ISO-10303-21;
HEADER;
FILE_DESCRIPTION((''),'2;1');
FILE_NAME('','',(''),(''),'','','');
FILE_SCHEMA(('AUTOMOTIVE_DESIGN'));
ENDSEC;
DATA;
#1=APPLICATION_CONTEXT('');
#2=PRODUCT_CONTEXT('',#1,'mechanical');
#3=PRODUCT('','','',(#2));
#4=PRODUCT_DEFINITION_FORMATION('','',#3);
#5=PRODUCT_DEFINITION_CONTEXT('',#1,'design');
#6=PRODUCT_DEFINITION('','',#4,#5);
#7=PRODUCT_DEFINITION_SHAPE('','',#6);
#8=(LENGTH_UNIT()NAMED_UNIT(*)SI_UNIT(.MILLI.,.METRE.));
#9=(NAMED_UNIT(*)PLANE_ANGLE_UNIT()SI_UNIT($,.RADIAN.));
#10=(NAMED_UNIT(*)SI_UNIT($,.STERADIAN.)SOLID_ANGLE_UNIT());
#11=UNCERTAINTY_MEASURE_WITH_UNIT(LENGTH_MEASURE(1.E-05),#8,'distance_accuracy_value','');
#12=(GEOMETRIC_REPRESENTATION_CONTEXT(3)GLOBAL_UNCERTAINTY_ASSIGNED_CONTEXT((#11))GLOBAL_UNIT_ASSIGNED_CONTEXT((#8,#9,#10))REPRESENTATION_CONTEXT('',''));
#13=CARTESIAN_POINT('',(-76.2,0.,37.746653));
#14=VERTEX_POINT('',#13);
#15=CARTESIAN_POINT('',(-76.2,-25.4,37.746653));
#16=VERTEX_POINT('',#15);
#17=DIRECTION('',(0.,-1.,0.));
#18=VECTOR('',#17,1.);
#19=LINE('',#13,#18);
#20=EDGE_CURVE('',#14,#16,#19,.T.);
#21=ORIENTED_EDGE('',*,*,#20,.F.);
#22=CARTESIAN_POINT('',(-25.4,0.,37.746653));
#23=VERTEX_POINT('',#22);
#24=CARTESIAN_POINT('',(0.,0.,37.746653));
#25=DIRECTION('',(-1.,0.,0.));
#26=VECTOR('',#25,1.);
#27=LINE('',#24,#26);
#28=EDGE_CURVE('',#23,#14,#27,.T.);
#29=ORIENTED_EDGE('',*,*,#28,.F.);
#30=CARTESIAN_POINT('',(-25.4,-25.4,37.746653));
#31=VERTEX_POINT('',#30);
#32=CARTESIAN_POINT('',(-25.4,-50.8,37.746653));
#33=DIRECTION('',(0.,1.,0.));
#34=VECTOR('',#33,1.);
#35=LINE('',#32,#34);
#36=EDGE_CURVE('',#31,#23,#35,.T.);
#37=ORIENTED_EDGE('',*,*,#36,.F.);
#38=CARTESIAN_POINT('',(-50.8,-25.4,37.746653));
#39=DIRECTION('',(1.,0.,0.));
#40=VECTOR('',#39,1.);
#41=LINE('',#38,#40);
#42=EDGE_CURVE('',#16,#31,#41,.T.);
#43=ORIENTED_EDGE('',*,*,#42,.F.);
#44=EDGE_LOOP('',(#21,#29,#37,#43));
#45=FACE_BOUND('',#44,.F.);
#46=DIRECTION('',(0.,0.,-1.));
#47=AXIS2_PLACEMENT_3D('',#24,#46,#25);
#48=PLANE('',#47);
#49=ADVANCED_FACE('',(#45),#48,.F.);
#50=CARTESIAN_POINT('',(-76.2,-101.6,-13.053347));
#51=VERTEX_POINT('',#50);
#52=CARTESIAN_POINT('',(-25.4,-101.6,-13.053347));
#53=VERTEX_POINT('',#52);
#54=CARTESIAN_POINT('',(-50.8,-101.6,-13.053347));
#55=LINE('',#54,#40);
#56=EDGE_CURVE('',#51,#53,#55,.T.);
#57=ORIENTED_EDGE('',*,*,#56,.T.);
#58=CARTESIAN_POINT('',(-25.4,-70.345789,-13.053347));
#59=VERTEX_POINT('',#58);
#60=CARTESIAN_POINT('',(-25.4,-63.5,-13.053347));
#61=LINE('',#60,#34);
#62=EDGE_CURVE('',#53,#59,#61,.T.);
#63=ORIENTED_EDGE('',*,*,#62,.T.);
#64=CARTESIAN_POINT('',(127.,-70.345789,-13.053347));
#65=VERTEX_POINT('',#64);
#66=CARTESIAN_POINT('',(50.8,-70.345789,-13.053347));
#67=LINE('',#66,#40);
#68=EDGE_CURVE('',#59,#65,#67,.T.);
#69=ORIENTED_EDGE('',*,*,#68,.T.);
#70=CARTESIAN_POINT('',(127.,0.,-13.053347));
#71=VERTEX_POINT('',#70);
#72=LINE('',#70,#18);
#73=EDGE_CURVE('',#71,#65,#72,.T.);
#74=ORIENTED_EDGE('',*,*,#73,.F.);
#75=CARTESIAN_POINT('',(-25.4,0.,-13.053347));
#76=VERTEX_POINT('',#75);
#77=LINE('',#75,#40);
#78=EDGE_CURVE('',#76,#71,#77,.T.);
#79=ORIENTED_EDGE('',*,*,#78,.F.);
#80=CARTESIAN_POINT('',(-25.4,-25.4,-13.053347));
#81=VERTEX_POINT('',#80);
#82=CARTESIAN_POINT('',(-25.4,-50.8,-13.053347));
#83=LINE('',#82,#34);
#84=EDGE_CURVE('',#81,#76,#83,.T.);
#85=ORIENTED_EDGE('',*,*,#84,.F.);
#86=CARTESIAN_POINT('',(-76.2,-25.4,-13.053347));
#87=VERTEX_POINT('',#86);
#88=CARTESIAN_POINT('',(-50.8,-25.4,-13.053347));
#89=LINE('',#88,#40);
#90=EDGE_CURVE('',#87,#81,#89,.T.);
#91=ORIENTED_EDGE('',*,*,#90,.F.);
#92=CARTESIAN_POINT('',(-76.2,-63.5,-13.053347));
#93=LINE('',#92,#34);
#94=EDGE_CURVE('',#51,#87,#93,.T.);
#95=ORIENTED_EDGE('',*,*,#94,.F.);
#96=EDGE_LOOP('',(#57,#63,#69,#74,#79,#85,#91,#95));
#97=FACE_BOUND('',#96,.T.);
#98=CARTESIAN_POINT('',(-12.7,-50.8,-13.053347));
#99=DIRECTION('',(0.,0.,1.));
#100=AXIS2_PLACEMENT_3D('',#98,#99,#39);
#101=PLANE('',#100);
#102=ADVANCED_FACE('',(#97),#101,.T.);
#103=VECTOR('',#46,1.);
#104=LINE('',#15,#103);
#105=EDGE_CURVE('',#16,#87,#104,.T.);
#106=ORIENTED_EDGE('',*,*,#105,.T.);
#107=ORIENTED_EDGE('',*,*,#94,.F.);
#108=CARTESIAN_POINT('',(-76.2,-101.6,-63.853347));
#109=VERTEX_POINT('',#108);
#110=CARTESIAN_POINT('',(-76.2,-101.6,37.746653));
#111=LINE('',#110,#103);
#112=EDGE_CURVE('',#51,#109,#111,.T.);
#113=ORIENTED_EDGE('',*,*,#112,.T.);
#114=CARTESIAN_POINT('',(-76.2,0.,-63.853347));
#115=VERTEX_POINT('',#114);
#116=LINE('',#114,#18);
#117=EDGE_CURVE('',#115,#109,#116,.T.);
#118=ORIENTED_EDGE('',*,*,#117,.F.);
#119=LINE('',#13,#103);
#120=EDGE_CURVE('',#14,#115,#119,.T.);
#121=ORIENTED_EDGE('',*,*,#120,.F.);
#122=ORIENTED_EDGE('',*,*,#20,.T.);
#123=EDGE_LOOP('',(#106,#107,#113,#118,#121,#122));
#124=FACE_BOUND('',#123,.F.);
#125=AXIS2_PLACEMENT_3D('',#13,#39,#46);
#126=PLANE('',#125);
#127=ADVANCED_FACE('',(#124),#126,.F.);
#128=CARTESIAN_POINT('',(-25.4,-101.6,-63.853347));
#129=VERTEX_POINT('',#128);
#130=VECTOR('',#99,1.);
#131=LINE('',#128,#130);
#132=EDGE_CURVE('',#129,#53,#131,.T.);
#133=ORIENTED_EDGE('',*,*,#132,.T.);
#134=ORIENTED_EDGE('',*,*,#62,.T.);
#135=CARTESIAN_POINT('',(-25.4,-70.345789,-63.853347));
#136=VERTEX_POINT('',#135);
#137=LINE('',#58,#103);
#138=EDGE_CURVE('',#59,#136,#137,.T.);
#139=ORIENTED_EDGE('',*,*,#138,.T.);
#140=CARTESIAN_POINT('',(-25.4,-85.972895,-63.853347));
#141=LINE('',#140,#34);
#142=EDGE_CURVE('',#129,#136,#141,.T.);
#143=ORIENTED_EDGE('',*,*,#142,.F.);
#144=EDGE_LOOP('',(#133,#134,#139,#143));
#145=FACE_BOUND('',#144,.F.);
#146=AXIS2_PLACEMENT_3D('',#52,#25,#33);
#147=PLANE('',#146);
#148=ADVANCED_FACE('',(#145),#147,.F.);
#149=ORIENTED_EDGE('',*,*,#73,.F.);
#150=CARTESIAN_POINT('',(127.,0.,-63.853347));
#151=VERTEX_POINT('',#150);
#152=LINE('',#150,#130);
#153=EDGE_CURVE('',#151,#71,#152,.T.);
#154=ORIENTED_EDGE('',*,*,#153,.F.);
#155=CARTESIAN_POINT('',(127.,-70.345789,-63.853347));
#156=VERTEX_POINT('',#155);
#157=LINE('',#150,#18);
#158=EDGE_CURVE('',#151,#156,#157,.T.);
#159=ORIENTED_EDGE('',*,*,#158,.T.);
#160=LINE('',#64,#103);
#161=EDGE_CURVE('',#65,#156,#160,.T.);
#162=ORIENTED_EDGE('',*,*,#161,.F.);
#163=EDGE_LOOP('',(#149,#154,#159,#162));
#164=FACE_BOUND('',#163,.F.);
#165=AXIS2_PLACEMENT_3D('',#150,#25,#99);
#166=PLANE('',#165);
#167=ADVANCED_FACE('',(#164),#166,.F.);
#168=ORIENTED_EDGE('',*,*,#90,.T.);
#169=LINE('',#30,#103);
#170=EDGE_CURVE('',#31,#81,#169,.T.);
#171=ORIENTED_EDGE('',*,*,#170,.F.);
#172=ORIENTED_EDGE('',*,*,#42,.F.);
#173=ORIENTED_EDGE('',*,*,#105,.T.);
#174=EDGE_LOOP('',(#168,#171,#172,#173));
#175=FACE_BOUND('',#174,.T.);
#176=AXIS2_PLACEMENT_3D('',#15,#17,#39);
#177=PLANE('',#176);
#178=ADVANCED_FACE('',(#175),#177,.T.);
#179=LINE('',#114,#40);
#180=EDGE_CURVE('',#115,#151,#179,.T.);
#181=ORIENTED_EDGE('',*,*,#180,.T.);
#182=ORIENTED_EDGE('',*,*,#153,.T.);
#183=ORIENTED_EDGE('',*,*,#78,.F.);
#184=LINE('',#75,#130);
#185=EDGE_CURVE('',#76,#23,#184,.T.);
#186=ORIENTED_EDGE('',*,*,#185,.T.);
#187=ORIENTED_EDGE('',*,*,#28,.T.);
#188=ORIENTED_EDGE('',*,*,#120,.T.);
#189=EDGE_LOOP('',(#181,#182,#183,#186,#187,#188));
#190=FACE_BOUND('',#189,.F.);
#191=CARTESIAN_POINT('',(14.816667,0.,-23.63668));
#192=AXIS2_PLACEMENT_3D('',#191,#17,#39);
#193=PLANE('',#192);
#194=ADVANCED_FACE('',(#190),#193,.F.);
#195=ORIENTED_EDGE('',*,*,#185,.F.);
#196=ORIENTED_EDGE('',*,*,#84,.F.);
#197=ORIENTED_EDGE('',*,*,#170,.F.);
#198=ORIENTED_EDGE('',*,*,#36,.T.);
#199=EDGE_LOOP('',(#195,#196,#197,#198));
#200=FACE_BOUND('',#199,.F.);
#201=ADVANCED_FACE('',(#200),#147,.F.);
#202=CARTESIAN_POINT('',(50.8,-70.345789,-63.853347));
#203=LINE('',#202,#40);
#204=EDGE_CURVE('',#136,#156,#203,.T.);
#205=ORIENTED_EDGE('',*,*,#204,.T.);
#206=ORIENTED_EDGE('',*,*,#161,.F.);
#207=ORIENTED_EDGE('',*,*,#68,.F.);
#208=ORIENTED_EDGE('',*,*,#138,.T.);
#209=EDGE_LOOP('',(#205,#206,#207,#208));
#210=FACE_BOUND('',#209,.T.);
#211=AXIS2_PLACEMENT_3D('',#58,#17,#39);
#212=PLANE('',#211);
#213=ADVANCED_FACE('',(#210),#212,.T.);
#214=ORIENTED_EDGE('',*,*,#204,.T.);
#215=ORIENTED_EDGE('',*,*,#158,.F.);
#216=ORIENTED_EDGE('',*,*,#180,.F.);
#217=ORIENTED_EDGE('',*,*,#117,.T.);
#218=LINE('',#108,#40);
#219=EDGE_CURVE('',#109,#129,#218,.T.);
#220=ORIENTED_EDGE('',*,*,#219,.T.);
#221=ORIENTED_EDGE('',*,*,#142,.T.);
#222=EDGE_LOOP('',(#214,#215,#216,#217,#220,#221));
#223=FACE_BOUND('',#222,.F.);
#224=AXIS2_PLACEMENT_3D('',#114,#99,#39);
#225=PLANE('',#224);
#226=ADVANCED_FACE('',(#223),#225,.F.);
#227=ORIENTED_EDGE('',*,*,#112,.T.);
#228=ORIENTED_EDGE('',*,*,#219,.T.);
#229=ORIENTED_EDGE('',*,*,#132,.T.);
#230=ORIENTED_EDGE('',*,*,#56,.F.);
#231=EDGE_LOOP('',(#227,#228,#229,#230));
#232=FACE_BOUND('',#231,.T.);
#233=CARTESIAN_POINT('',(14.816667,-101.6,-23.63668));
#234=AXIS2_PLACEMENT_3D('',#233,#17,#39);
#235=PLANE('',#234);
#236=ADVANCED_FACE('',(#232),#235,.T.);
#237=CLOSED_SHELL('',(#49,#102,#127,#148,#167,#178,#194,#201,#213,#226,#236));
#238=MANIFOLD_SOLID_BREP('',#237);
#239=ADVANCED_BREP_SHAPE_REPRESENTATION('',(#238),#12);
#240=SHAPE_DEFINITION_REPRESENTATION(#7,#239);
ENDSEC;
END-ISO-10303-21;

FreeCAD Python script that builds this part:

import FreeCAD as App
import Part
import Sketcher
from FreeCAD import Vector
Q = App.Units.Quantity

doc = App.newDocument("Part")
body = doc.addObject("PartDesign::Body", "Body")

# Sketch on XZ plane
sketch1 = body.newObject("Sketcher::SketchObject", "Sketch")
sketch1.AttachmentSupport = (doc.getObject("XZ_Plane"), [""])
sketch1.MapMode = "FlatFace"
sketch1.addGeometry([
    Part.LineSegment(Vector(0, 37.746653, 0), Vector(-76.2, 37.746653, 0)),  # 0
    Part.LineSegment(Vector(-76.2, 37.746653, 0), Vector(-76.2, -63.853347, 0)),  # 1
    Part.LineSegment(Vector(-76.2, -63.853347, 0), Vector(127, -63.853347, 0)),  # 2
    Part.LineSegment(Vector(127, -63.853347, 0), Vector(127, -13.053347, 0)),  # 3
    Part.LineSegment(Vector(127, -13.053347, 0), Vector(0, -13.053347, 0)),  # 4
    Part.LineSegment(Vector(0, -13.053347, 0), Vector(0, 37.746653, 0)),  # 5
], False)
sketch1.addConstraint([
    Sketcher.Constraint("Coincident", 0, 2, 1, 1),
    Sketcher.Constraint("Coincident", 1, 2, 2, 1),
    Sketcher.Constraint("Coincident", 2, 2, 3, 1),
    Sketcher.Constraint("Coincident", 3, 2, 4, 1),
    Sketcher.Constraint("Coincident", 4, 2, 5, 1),
    Sketcher.Constraint("Coincident", 5, 2, 0, 1),
    Sketcher.Constraint("Horizontal", 0),
    Sketcher.Constraint("Vertical", 1),
    Sketcher.Constraint("Horizontal", 2),
    Sketcher.Constraint("Vertical", 3),
    Sketcher.Constraint("Horizontal", 4),
    Sketcher.Constraint("Vertical", 5),
    Sketcher.Constraint("PointOnObject", 4, 2, -2),
    Sketcher.Constraint("Equal", 3, 5),
    Sketcher.Constraint("DistanceX", 0, 2, 0, 1, Q("3 in")),
    Sketcher.Constraint("DistanceX", 2, 1, 2, 2, Q("8 in")),
    Sketcher.Constraint("DistanceY", 1, 2, 1, 1, Q("4 in")),
    Sketcher.Constraint("DistanceY", -1, 1, 0, 2, Q("37.746653 mm")),
])
pad1 = body.newObject("PartDesign::Pad", "Pad")
pad1.Profile = sketch1
pad1.Length = Q("4 in")

# Sketch on XY plane
sketch2 = body.newObject("Sketcher::SketchObject", "Sketch001")
sketch2.AttachmentSupport = (doc.getObject("XY_Plane"), [""])
sketch2.MapMode = "FlatFace"
sketch2.AttachmentOffset = App.Placement(Vector(0, 0, -13.053347), App.Rotation())
sketch2.addGeometry([
    Part.LineSegment(Vector(-25.4, 0, 0), Vector(-25.4, -101.6, 0)),
    Part.LineSegment(Vector(-25.4, -101.6, 0), Vector(0, -101.6, 0)),
    Part.LineSegment(Vector(0, -101.6, 0), Vector(0, 0, 0)),
    Part.LineSegment(Vector(0, 0, 0), Vector(-25.4, 0, 0)),
], False)
sketch2.addConstraint([
    Sketcher.Constraint("Coincident", 0, 2, 1, 1),
    Sketcher.Constraint("Coincident", 1, 2, 2, 1),
    Sketcher.Constraint("Coincident", 2, 2, 3, 1),
    Sketcher.Constraint("Coincident", 3, 2, 0, 1),
    Sketcher.Constraint("Vertical", 0),
    Sketcher.Constraint("Horizontal", 1),
    Sketcher.Constraint("Vertical", 2),
    Sketcher.Constraint("Horizontal", 3),
    Sketcher.Constraint("Coincident", 2, 2, -1, 1),
    Sketcher.Constraint("DistanceX", 1, 1, 1, 2, Q("1 in")),
    Sketcher.Constraint("DistanceY", 0, 2, 0, 1, Q("4 in")),
])
pocket1 = body.newObject("PartDesign::Pocket", "Pocket")
pocket1.Profile = sketch2
pocket1.Length = Q("2 in")
pocket1.Reversed = True

# Sketch on XY plane
sketch3 = body.newObject("Sketcher::SketchObject", "Sketch002")
sketch3.AttachmentSupport = (doc.getObject("XY_Plane"), [""])
sketch3.MapMode = "FlatFace"
sketch3.AttachmentOffset = App.Placement(Vector(0, 0, -13.053347), App.Rotation())
sketch3.addGeometry([
    Part.LineSegment(Vector(-25.4, -70.345789, 0), Vector(-25.4, -101.6, 0)),
    Part.LineSegment(Vector(-25.4, -101.6, 0), Vector(127, -101.6, 0)),
    Part.LineSegment(Vector(127, -101.6, 0), Vector(127, -70.345789, 0)),
    Part.LineSegment(Vector(127, -70.345789, 0), Vector(-25.4, -70.345789, 0)),
], False)
sketch3.addConstraint([
    Sketcher.Constraint("Coincident", 0, 2, 1, 1),
    Sketcher.Constraint("Coincident", 1, 2, 2, 1),
    Sketcher.Constraint("Coincident", 2, 2, 3, 1),
    Sketcher.Constraint("Coincident", 3, 2, 0, 1),
    Sketcher.Constraint("Vertical", 0),
    Sketcher.Constraint("Horizontal", 1),
    Sketcher.Constraint("Vertical", 2),
    Sketcher.Constraint("Horizontal", 3),
    Sketcher.Constraint("DistanceX", 1, 1, 1, 2, Q("6 in")),
    Sketcher.Constraint("DistanceX", 0, 2, -1, 1, Q("1 in")),
    Sketcher.Constraint("DistanceY", 0, 2, -1, 1, Q("4 in")),
    Sketcher.Constraint("DistanceY", 0, 2, 0, 1, Q("31.254211 mm")),
])
pocket2 = body.newObject("PartDesign::Pocket", "Pocket001")
pocket2.Profile = sketch3
pocket2.Length = Q("2 in")

# Sketch on XY plane
sketch4 = body.newObject("Sketcher::SketchObject", "Sketch003")
sketch4.AttachmentSupport = (doc.getObject("XY_Plane"), [""])
sketch4.MapMode = "FlatFace"
sketch4.AttachmentOffset = App.Placement(Vector(0, 0, 37.746653), App.Rotation())
sketch4.addGeometry([
    Part.LineSegment(Vector(-76.2, -25.4, 0), Vector(-76.2, -101.6, 0)),
    Part.LineSegment(Vector(-76.2, -101.6, 0), Vector(-25.4, -101.6, 0)),
    Part.LineSegment(Vector(-25.4, -101.6, 0), Vector(-25.4, -25.4, 0)),
    Part.LineSegment(Vector(-25.4, -25.4, 0), Vector(-76.2, -25.4, 0)),
], False)
sketch4.addConstraint([
    Sketcher.Constraint("Coincident", 0, 2, 1, 1),
    Sketcher.Constraint("Coincident", 1, 2, 2, 1),
    Sketcher.Constraint("Coincident", 2, 2, 3, 1),
    Sketcher.Constraint("Coincident", 3, 2, 0, 1),
    Sketcher.Constraint("Vertical", 0),
    Sketcher.Constraint("Horizontal", 1),
    Sketcher.Constraint("Vertical", 2),
    Sketcher.Constraint("Horizontal", 3),
    Sketcher.Constraint("DistanceX", 1, 1, 1, 2, Q("2 in")),
    Sketcher.Constraint("DistanceY", 0, 2, 0, 1, Q("3 in")),
    Sketcher.Constraint("DistanceX", 0, 2, -1, 1, Q("3 in")),
    Sketcher.Constraint("DistanceY", 0, 2, -1, 1, Q("4 in")),
])
pocket3 = body.newObject("PartDesign::Pocket", "Pocket002")
pocket3.Profile = sketch4
pocket3.Length = Q("2 in")

doc.recompute()
